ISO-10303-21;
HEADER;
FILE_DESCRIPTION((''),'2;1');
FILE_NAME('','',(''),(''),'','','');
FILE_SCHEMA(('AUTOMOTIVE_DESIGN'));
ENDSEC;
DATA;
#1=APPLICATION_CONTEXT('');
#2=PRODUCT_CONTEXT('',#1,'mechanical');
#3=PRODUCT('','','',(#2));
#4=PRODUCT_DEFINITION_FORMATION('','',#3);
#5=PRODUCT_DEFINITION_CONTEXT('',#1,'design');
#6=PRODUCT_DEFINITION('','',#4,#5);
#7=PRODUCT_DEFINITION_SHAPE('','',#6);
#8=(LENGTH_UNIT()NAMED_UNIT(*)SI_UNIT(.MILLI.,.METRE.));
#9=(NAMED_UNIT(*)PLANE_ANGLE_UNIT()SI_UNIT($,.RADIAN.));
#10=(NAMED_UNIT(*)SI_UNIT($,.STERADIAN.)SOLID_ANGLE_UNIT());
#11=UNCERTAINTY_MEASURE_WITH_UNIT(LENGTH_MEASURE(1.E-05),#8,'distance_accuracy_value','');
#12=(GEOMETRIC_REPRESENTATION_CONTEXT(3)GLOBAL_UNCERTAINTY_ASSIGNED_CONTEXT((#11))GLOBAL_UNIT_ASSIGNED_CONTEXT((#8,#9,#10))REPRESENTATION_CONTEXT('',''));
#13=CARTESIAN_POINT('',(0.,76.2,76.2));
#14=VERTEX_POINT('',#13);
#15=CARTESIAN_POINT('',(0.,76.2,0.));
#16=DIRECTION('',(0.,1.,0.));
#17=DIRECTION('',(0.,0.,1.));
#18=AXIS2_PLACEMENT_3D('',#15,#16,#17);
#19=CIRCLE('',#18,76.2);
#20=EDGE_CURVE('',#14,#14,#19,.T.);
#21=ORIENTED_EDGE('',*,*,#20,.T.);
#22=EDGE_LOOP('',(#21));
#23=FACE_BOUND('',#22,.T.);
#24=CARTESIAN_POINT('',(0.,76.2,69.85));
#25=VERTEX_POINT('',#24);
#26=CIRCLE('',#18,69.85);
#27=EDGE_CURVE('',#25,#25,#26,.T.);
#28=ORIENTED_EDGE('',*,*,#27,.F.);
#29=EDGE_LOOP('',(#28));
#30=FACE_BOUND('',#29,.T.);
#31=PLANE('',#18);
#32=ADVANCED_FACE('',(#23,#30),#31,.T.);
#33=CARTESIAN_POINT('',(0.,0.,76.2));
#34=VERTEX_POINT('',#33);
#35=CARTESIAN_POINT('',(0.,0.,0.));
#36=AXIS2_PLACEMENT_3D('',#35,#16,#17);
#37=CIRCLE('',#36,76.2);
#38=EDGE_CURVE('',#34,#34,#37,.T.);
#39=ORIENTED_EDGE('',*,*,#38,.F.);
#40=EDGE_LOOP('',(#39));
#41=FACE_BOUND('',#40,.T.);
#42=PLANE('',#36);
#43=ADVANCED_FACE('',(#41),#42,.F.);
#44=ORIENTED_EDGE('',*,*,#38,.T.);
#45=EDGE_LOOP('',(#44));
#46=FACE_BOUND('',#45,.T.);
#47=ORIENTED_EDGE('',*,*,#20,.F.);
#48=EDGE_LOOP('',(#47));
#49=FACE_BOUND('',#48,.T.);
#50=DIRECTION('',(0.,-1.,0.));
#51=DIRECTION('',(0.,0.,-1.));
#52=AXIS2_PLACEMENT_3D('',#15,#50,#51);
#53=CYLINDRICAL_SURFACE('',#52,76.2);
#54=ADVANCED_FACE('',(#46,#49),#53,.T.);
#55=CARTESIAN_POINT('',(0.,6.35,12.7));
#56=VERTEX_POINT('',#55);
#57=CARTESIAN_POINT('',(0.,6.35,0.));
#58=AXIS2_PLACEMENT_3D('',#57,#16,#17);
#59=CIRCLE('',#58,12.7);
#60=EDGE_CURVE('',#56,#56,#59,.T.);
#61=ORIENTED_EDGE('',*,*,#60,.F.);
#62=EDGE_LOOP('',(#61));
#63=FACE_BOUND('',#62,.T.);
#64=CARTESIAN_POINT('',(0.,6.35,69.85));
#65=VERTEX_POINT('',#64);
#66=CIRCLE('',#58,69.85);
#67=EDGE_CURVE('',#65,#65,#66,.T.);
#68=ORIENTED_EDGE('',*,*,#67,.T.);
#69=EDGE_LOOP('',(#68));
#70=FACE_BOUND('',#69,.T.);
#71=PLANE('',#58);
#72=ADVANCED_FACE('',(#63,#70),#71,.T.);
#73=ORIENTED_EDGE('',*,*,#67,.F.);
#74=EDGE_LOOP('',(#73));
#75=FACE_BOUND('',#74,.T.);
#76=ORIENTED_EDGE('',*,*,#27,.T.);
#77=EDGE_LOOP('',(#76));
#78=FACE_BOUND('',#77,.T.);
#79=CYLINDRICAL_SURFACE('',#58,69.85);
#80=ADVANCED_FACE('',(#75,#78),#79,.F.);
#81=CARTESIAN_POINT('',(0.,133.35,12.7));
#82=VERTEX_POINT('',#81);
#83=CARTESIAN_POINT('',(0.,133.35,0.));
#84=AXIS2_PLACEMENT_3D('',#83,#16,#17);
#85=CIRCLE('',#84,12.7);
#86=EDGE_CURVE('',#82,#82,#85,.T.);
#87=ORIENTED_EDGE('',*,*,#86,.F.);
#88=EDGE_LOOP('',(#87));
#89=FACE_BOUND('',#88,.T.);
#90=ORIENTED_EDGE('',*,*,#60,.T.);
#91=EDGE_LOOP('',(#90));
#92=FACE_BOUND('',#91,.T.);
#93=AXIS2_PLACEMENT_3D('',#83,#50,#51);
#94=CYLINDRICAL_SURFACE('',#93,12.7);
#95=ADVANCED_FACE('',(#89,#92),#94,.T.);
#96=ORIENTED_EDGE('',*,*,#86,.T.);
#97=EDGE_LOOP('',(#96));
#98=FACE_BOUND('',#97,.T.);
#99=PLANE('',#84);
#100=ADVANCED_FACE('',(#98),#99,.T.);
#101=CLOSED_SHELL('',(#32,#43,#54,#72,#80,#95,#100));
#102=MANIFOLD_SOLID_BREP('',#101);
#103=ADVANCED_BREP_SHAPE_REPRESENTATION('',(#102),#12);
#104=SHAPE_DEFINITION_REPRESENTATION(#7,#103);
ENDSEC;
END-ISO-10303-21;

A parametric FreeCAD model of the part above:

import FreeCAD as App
import Part
import Sketcher
from FreeCAD import Vector
Q = App.Units.Quantity

doc = App.newDocument("Part")
body = doc.addObject("PartDesign::Body", "Body")

# Sketch on XZ plane
sketch1 = doc.addObject("Sketcher::SketchObject", "Sketch")
body.addObject(sketch1)
sketch1.AttachmentSupport = (doc.XZ_Plane, [""])
sketch1.MapMode = "FlatFace"
sketch1.addGeometry(Part.Circle(Vector(0, 0, 0), Vector(0, 0, 1), 76), False)
sketch1.addConstraint([
    Sketcher.Constraint("Coincident", 0, 3, -1, 1),
    Sketcher.Constraint("Diameter", 0, Q("6 in")),
])
pad1 = doc.addObject("PartDesign::Pad", "Pad")
body.addObject(pad1)
pad1.Profile = sketch1
pad1.Length = Q("3 in")
pad1.Reversed = True

# Sketch on XZ plane
sketch2 = doc.addObject("Sketcher::SketchObject", "Sketch001")
body.addObject(sketch2)
sketch2.AttachmentSupport = (doc.XZ_Plane, [""])
sketch2.MapMode = "FlatFace"
sketch2.AttachmentOffset = App.Placement(Vector(0, 0, -3 * 25.4), App.Rotation())
sketch2.addGeometry(Part.Circle(Vector(0, 0, 0), Vector(0, 0, 1), 13), False)
sketch2.addConstraint([
    Sketcher.Constraint("Coincident", 0, 3, -1, 1),
    Sketcher.Constraint("Diameter", 0, Q("1 in")),
])
pad2 = doc.addObject("PartDesign::Pad", "Pad001")
body.addObject(pad2)
pad2.Profile = sketch2
pad2.Length = Q("2.25 in")
pad2.Reversed = True

# Sketch on XZ plane
sketch3 = doc.addObject("Sketcher::SketchObject", "Sketch002")
body.addObject(sketch3)
sketch3.AttachmentSupport = (doc.XZ_Plane, [""])
sketch3.MapMode = "FlatFace"
sketch3.AttachmentOffset = App.Placement(Vector(0, 0, -3 * 25.4), App.Rotation())
sketch3.addGeometry([
    Part.Circle(Vector(0, 0, 0), Vector(0, 0, 1), 70),
    Part.Circle(Vector(0, 0, 0), Vector(0, 0, 1), 13),
], False)
sketch3.addConstraint([
    Sketcher.Constraint("Coincident", 0, 3, -1, 1),
    Sketcher.Constraint("Coincident", 1, 3, -1, 1),
    Sketcher.Constraint("Diameter", 1, Q("1 in")),
    Sketcher.Constraint("Diameter", 0, Q("5.5 in")),
])
pocket1 = doc.addObject("PartDesign::Pocket", "Pocket")
body.addObject(pocket1)
pocket1.Profile = sketch3
pocket1.Length = Q("2.75 in")
pocket1.Reversed = True

doc.recompute()
